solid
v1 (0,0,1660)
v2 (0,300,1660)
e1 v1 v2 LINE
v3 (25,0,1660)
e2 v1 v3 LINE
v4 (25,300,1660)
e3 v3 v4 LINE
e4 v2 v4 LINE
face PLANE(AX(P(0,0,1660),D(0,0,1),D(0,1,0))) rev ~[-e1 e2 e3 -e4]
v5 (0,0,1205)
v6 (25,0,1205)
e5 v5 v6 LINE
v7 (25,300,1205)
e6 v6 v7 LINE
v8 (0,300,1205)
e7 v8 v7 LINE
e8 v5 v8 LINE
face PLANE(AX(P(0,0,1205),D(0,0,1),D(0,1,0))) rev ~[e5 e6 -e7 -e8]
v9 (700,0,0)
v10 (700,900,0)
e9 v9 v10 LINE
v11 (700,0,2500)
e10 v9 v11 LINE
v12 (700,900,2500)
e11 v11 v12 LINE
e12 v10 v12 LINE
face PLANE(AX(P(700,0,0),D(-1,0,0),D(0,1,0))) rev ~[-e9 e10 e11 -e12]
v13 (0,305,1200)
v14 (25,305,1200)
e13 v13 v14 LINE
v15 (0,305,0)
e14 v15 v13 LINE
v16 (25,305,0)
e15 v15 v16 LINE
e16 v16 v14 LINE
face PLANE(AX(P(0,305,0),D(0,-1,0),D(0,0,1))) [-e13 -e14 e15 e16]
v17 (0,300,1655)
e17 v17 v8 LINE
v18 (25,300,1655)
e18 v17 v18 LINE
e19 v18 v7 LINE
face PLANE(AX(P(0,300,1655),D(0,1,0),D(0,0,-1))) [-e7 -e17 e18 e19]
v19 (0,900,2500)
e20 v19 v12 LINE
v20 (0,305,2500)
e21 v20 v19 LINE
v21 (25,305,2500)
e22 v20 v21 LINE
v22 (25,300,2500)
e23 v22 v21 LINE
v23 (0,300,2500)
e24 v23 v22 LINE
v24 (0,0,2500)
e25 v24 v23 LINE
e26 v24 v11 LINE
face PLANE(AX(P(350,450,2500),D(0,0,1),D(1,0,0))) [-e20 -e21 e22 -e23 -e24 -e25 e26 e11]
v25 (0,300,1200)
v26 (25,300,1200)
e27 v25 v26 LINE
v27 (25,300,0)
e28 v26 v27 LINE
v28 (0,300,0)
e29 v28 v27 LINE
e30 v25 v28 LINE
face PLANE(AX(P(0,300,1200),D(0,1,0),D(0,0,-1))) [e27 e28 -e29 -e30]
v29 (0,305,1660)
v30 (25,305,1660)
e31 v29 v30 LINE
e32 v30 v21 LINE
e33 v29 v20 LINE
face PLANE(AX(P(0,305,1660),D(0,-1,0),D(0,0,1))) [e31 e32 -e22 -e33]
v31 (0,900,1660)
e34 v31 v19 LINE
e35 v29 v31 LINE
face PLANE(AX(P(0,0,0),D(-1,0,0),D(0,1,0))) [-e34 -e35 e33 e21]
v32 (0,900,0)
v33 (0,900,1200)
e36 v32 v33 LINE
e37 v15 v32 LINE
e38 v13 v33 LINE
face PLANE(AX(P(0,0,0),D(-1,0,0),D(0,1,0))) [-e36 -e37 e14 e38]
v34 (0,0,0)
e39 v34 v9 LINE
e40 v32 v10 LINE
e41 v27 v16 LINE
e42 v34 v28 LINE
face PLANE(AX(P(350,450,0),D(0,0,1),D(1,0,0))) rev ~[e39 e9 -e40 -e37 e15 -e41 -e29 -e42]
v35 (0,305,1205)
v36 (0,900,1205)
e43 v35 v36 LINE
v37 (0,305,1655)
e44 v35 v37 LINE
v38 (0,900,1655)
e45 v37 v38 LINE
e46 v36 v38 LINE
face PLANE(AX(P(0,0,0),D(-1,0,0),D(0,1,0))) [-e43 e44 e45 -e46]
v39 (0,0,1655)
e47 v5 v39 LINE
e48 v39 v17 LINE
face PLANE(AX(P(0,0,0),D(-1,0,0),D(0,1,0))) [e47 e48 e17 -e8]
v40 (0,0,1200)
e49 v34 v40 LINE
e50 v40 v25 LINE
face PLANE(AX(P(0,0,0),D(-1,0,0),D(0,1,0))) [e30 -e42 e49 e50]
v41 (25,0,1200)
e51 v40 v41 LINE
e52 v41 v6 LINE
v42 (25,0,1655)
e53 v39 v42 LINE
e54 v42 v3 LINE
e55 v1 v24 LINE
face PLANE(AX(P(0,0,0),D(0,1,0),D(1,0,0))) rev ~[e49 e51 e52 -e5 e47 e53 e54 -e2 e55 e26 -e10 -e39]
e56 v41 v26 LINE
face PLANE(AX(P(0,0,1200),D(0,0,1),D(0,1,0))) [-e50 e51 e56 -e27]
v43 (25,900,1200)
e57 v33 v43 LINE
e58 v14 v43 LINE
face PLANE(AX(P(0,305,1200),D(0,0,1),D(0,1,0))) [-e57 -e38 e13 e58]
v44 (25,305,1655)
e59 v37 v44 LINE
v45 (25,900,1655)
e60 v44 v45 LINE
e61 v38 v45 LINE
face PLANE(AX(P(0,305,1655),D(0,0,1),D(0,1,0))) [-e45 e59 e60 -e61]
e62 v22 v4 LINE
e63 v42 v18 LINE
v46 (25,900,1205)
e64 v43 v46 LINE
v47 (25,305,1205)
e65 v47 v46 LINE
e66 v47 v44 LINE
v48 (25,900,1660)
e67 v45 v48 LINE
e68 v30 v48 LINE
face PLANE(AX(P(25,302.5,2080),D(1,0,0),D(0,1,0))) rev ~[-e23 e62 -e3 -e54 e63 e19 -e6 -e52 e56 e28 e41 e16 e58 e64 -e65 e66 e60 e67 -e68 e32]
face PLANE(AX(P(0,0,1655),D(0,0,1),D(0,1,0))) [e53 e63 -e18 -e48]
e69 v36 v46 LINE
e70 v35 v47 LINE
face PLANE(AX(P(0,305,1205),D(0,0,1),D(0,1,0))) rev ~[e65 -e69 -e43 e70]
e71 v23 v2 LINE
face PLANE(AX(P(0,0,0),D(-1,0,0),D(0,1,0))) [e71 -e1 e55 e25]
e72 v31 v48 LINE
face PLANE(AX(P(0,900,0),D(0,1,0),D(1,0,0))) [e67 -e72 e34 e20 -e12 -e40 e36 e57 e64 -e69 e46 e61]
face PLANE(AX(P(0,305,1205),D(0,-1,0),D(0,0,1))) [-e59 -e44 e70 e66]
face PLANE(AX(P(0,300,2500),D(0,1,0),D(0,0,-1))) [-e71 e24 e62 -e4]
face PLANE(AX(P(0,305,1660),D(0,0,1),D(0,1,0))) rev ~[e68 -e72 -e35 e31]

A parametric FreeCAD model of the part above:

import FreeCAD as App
import Part
import Sketcher
from FreeCAD import Vector


def add_polygon(sketch, points):
    """Adds a closed chain of lines whose ends are joined by coincident constraints."""
    first, n = sketch.GeometryCount, len(points)
    for a, b in zip(points, points[1:] + points[:1]):
        sketch.addGeometry(Part.LineSegment(App.Vector(*a, 0), App.Vector(*b, 0)), False)
    for i in range(n):
        sketch.addConstraint(Sketcher.Constraint("Coincident", first + i, 2, first + (i + 1) % n, 1))

doc = App.newDocument("Part")
body = doc.addObject("PartDesign::Body", "Body")

# Sketch on XY plane
sketch1 = body.newObject("Sketcher::SketchObject", "Sketch")
sketch1.AttachmentSupport = (doc.getObject("XY_Plane"), [""])
sketch1.MapMode = "FlatFace"
add_polygon(sketch1, [(0, 900), (0, 0), (700, 0), (700, 900)])  # lines 0-3
sketch1.addConstraint(Sketcher.Constraint("Vertical", 0))
sketch1.addConstraint(Sketcher.Constraint("Horizontal", 1))
sketch1.addConstraint(Sketcher.Constraint("Vertical", 2))
sketch1.addConstraint(Sketcher.Constraint("Horizontal", 3))
sketch1.addConstraint(Sketcher.Constraint("Coincident", 0, 2, -1, 1))
sketch1.addConstraint(Sketcher.Constraint("DistanceX", 1, 1, 1, 2, 700.0))
sketch1.addConstraint(Sketcher.Constraint("DistanceY", 0, 2, 0, 1, 900.0))
pad1 = body.newObject("PartDesign::Pad", "Pad")
pad1.Profile = sketch1
pad1.Length = 2500

# Sketch on YZ plane
sketch2 = body.newObject("Sketcher::SketchObject", "Sketch001")
sketch2.AttachmentSupport = (doc.getObject("YZ_Plane"), [""])
sketch2.MapMode = "FlatFace"
add_polygon(sketch2, [(300, 2500), (300, 1660), (0, 1660), (0, 1655), (300, 1655), (300, 1205), (0, 1205), (0, 1200), (300, 1200), (300, 0), (305, 0), (305, 1200), (900, 1200), (900, 1205), (305, 1205), (305, 1655), (900, 1655), (900, 1660), (305, 1660), (305, 2500)])  # lines 0-19
sketch2.addConstraint(Sketcher.Constraint("Vertical", 0))
sketch2.addConstraint(Sketcher.Constraint("Horizontal", 1))
sketch2.addConstraint(Sketcher.Constraint("Vertical", 2))
sketch2.addConstraint(Sketcher.Constraint("Horizontal", 3))
sketch2.addConstraint(Sketcher.Constraint("Vertical", 4))
sketch2.addConstraint(Sketcher.Constraint("Horizontal", 5))
sketch2.addConstraint(Sketcher.Constraint("Vertical", 6))
sketch2.addConstraint(Sketcher.Constraint("Horizontal", 7))
sketch2.addConstraint(Sketcher.Constraint("Vertical", 8))
sketch2.addConstraint(Sketcher.Constraint("Horizontal", 9))
sketch2.addConstraint(Sketcher.Constraint("Vertical", 10))
sketch2.addConstraint(Sketcher.Constraint("Horizontal", 11))
sketch2.addConstraint(Sketcher.Constraint("Vertical", 12))
sketch2.addConstraint(Sketcher.Constraint("Horizontal", 13))
sketch2.addConstraint(Sketcher.Constraint("Vertical", 14))
sketch2.addConstraint(Sketcher.Constraint("Horizontal", 15))
sketch2.addConstraint(Sketcher.Constraint("Vertical", 16))
sketch2.addConstraint(Sketcher.Constraint("Horizontal", 17))
sketch2.addConstraint(Sketcher.Constraint("Vertical", 18))
sketch2.addConstraint(Sketcher.Constraint("Horizontal", 19))
sketch2.addConstraint(Sketcher.Constraint("PointOnObject", 1, 2, -2))
sketch2.addConstraint(Sketcher.Constraint("PointOnObject", 5, 2, -2))
sketch2.addConstraint(Sketcher.Constraint("PointOnObject", 8, 2, -1))
sketch2.addConstraint(Sketcher.Constraint("Horizontal", 7, 2, 10, 2))
sketch2.addConstraint(Sketcher.Constraint("Horizontal", 5, 2, 12, 2))
sketch2.addConstraint(Sketcher.Constraint("Horizontal", 3, 2, 14, 2))
sketch2.addConstraint(Sketcher.Constraint("Horizontal", 1, 2, 16, 2))
sketch2.addConstraint(Sketcher.Constraint("Vertical", 0, 2, 3, 2))
sketch2.addConstraint(Sketcher.Constraint("Vertical", 4, 2, 7, 2))
sketch2.addConstraint(Sketcher.Constraint("Vertical", 10, 2, 13, 2))
sketch2.addConstraint(Sketcher.Constraint("Vertical", 12, 2, 15, 2))
sketch2.addConstraint(Sketcher.Constraint("Vertical", 14, 2, 17, 2))
sketch2.addConstraint(Sketcher.Constraint("Equal", 19, 2))
sketch2.addConstraint(Sketcher.Constraint("Equal", 2, 6))
sketch2.addConstraint(Sketcher.Constraint("DistanceX", 1, 2, 1, 1, 300.0))
sketch2.addConstraint(Sketcher.Constraint("DistanceX", 9, 1, 9, 2, 5.0))
sketch2.addConstraint(Sketcher.Constraint("DistanceX", 11, 1, 11, 2, 595.0))
sketch2.addConstraint(Sketcher.Constraint("DistanceY", 0, 2, 0, 1, 840.0))
sketch2.addConstraint(Sketcher.Constraint("DistanceY", 4, 2, 4, 1, 450.0))
sketch2.addConstraint(Sketcher.Constraint("DistanceY", 8, 2, 8, 1, 1200.0))
pocket1 = body.newObject("PartDesign::Pocket", "Pocket")
pocket1.Profile = sketch2
pocket1.Length = 25
pocket1.Reversed = True

doc.recompute()
